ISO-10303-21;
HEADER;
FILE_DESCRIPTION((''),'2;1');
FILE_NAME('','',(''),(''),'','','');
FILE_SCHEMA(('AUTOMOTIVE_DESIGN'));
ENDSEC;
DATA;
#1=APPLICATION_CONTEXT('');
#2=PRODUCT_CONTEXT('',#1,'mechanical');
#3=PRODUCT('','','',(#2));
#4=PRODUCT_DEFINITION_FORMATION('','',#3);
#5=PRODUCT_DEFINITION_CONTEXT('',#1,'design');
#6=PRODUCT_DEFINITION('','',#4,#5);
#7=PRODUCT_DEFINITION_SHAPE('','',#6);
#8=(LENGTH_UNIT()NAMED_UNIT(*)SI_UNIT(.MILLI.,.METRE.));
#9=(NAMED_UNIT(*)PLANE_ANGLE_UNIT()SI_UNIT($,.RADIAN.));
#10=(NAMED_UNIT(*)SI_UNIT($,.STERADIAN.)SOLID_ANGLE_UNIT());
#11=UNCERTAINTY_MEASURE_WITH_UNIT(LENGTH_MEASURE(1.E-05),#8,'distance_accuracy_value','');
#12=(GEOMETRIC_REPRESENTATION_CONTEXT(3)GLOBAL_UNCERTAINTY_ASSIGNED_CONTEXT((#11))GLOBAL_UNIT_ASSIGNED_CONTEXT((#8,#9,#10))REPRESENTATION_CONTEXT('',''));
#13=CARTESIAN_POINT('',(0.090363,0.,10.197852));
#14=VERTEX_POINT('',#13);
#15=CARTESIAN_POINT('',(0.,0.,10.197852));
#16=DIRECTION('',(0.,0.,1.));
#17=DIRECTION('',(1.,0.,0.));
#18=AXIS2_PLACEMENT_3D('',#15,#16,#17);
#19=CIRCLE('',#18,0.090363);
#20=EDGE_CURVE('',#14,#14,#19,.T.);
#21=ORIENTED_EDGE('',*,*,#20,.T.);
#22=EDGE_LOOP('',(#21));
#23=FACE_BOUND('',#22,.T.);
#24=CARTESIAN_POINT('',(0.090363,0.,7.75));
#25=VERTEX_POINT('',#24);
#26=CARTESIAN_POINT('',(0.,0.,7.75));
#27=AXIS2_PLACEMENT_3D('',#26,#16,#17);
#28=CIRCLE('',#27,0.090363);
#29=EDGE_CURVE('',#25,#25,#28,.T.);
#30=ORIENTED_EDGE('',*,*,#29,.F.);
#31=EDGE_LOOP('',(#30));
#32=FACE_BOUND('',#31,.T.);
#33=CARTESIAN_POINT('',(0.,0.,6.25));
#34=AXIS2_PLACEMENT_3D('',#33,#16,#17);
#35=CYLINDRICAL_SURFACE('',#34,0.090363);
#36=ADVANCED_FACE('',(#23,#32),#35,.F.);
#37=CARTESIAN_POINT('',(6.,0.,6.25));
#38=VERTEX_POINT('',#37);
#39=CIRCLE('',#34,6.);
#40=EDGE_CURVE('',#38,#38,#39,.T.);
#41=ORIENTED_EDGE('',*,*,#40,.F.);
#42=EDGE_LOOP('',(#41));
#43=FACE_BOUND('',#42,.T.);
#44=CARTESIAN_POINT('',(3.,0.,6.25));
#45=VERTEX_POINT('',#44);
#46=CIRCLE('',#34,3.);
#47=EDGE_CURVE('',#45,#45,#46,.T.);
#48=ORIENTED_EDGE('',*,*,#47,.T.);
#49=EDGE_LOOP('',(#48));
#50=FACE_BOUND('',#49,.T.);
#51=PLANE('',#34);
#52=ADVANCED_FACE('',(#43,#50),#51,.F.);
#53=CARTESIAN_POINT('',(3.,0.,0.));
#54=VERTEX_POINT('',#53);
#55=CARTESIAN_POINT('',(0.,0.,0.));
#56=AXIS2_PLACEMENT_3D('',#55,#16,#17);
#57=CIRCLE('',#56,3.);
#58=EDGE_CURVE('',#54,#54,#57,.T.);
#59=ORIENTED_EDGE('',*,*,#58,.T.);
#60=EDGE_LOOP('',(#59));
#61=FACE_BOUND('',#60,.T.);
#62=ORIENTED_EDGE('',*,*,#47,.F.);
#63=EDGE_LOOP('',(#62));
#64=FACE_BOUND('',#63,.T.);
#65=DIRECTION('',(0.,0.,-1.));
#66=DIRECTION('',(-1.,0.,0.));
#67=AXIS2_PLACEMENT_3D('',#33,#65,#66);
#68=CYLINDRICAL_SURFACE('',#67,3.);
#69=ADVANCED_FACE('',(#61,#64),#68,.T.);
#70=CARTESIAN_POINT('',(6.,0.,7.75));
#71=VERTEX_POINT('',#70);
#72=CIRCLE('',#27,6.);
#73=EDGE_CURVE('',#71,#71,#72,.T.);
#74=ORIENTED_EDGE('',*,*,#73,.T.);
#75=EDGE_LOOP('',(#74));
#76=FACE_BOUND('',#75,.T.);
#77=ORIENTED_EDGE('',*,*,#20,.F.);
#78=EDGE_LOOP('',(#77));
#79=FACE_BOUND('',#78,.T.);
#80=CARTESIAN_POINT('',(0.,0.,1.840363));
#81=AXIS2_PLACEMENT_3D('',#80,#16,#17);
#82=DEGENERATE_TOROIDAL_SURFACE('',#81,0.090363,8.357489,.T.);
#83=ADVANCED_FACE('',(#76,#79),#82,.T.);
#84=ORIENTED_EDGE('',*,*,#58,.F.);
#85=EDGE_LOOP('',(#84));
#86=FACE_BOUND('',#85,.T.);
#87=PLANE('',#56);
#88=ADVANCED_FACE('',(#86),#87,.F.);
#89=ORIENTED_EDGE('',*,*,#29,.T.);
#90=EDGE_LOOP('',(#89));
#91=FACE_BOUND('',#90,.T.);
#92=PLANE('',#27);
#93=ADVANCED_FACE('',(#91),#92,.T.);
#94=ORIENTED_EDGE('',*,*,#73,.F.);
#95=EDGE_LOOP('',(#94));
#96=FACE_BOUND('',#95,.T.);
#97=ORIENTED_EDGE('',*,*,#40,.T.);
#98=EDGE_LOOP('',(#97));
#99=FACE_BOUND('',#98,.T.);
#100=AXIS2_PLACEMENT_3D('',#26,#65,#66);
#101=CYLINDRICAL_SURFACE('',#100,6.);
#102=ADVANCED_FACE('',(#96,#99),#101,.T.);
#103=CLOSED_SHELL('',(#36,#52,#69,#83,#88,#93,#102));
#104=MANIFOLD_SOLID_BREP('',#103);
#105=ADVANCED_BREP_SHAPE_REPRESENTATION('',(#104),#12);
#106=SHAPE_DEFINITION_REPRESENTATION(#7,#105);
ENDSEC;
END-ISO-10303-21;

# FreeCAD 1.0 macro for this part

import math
import FreeCAD as App
import Part
import Sketcher

V = App.Vector
Q = App.Units.Quantity

doc = App.newDocument("Part")
params = doc.addObject("Spreadsheet::Sheet", "Params")
for row, (alias, value) in enumerate([
    ("sketch1_diameter", "6 mm"),
    ("pad1_length", "6.25 mm"),
    ("sketch2_diameter", "12 mm"),
    ("pad2_length", "1.5 mm"),
    ("revolution_angle", "360 deg"),
], start=1):
    params.set(f"A{row}", alias)
    params.set(f"B{row}", "=" + value)
    params.setAlias(f"B{row}", alias)

body = doc.addObject("PartDesign::Body", "Body")

# Sketch on XY plane
sketch1 = doc.addObject("Sketcher::SketchObject", "Sketch")
body.addObject(sketch1)
sketch1.AttachmentSupport = (doc.XY_Plane, [""])
sketch1.MapMode = "FlatFace"
sketch1.addGeometry(Part.Circle(V(0, 0, 0), V(0, 0, 1), 3), False)
sketch1.addConstraint([
    Sketcher.Constraint("Coincident", 0, 3, -1, 1),
    Sketcher.Constraint("Diameter", 0, Q("6 mm")),
])
sketch1.setExpression("Constraints[1]", "Params.sketch1_diameter")
pad1 = doc.addObject("PartDesign::Pad", "Pad")
body.addObject(pad1)
pad1.Profile = sketch1
pad1.setExpression("Length", "Params.pad1_length")

# Sketch on XY plane
sketch2 = doc.addObject("Sketcher::SketchObject", "Sketch001")
body.addObject(sketch2)
sketch2.AttachmentSupport = (doc.XY_Plane, [""])
sketch2.MapMode = "FlatFace"
sketch2.AttachmentOffset = App.Placement(V(0, 0, 6.25), App.Rotation())
sketch2.addGeometry(Part.Circle(V(0, 0, 0), V(0, 0, 1), 6), False)
sketch2.addConstraint([
    Sketcher.Constraint("Coincident", 0, 3, -1, 1),
    Sketcher.Constraint("Diameter", 0, Q("12 mm")),
])
sketch2.setExpression("Constraints[1]", "Params.sketch2_diameter")
pad2 = doc.addObject("PartDesign::Pad", "Pad001")
body.addObject(pad2)
pad2.Profile = sketch2
pad2.setExpression("Length", "Params.pad2_length")

# Sketch on YZ plane
sketch3 = doc.addObject("Sketcher::SketchObject", "Sketch002")
body.addObject(sketch3)
sketch3.AttachmentSupport = (doc.YZ_Plane, [""])
sketch3.MapMode = "FlatFace"
sketch3.addGeometry([
    Part.LineSegment(V(0.1, 7.8, 0), V(6, 7.8, 0)),
    Part.ArcOfCircle(Part.Circle(V(0.1, 1.8, 0), V(0, 0, 1), 8.4), math.radians(45), math.radians(90)),
    Part.LineSegment(V(0.1, 10.2, 0), V(0.1, 7.8, 0)),
], False)
sketch3.addConstraint([
    Sketcher.Constraint("Coincident", 0, 2, 1, 1),
    Sketcher.Constraint("Coincident", 1, 2, 2, 1),
    Sketcher.Constraint("Coincident", 2, 2, 0, 1),
    Sketcher.Constraint("Horizontal", 0),
    Sketcher.Constraint("Vertical", 2),
    Sketcher.Constraint("DistanceX", -1, 1, 0, 2, Q("6 mm")),
    Sketcher.Constraint("DistanceY", -1, 1, 0, 2, Q("7.75 mm")),
    Sketcher.Constraint("Radius", 1, Q("8.357489 mm")),
    Sketcher.Constraint("DistanceY", 2, 2, 2, 1, Q("2.447852 mm")),
    Sketcher.Constraint("DistanceX", 0, 1, 0, 2, Q("5.909637 mm")),
])
revolution = doc.addObject("PartDesign::Revolution", "Revolution")
body.addObject(revolution)
revolution.Profile = sketch3
revolution.ReferenceAxis = (sketch3, ["V_Axis"])
revolution.setExpression("Angle", "Params.revolution_angle")

doc.recompute()
